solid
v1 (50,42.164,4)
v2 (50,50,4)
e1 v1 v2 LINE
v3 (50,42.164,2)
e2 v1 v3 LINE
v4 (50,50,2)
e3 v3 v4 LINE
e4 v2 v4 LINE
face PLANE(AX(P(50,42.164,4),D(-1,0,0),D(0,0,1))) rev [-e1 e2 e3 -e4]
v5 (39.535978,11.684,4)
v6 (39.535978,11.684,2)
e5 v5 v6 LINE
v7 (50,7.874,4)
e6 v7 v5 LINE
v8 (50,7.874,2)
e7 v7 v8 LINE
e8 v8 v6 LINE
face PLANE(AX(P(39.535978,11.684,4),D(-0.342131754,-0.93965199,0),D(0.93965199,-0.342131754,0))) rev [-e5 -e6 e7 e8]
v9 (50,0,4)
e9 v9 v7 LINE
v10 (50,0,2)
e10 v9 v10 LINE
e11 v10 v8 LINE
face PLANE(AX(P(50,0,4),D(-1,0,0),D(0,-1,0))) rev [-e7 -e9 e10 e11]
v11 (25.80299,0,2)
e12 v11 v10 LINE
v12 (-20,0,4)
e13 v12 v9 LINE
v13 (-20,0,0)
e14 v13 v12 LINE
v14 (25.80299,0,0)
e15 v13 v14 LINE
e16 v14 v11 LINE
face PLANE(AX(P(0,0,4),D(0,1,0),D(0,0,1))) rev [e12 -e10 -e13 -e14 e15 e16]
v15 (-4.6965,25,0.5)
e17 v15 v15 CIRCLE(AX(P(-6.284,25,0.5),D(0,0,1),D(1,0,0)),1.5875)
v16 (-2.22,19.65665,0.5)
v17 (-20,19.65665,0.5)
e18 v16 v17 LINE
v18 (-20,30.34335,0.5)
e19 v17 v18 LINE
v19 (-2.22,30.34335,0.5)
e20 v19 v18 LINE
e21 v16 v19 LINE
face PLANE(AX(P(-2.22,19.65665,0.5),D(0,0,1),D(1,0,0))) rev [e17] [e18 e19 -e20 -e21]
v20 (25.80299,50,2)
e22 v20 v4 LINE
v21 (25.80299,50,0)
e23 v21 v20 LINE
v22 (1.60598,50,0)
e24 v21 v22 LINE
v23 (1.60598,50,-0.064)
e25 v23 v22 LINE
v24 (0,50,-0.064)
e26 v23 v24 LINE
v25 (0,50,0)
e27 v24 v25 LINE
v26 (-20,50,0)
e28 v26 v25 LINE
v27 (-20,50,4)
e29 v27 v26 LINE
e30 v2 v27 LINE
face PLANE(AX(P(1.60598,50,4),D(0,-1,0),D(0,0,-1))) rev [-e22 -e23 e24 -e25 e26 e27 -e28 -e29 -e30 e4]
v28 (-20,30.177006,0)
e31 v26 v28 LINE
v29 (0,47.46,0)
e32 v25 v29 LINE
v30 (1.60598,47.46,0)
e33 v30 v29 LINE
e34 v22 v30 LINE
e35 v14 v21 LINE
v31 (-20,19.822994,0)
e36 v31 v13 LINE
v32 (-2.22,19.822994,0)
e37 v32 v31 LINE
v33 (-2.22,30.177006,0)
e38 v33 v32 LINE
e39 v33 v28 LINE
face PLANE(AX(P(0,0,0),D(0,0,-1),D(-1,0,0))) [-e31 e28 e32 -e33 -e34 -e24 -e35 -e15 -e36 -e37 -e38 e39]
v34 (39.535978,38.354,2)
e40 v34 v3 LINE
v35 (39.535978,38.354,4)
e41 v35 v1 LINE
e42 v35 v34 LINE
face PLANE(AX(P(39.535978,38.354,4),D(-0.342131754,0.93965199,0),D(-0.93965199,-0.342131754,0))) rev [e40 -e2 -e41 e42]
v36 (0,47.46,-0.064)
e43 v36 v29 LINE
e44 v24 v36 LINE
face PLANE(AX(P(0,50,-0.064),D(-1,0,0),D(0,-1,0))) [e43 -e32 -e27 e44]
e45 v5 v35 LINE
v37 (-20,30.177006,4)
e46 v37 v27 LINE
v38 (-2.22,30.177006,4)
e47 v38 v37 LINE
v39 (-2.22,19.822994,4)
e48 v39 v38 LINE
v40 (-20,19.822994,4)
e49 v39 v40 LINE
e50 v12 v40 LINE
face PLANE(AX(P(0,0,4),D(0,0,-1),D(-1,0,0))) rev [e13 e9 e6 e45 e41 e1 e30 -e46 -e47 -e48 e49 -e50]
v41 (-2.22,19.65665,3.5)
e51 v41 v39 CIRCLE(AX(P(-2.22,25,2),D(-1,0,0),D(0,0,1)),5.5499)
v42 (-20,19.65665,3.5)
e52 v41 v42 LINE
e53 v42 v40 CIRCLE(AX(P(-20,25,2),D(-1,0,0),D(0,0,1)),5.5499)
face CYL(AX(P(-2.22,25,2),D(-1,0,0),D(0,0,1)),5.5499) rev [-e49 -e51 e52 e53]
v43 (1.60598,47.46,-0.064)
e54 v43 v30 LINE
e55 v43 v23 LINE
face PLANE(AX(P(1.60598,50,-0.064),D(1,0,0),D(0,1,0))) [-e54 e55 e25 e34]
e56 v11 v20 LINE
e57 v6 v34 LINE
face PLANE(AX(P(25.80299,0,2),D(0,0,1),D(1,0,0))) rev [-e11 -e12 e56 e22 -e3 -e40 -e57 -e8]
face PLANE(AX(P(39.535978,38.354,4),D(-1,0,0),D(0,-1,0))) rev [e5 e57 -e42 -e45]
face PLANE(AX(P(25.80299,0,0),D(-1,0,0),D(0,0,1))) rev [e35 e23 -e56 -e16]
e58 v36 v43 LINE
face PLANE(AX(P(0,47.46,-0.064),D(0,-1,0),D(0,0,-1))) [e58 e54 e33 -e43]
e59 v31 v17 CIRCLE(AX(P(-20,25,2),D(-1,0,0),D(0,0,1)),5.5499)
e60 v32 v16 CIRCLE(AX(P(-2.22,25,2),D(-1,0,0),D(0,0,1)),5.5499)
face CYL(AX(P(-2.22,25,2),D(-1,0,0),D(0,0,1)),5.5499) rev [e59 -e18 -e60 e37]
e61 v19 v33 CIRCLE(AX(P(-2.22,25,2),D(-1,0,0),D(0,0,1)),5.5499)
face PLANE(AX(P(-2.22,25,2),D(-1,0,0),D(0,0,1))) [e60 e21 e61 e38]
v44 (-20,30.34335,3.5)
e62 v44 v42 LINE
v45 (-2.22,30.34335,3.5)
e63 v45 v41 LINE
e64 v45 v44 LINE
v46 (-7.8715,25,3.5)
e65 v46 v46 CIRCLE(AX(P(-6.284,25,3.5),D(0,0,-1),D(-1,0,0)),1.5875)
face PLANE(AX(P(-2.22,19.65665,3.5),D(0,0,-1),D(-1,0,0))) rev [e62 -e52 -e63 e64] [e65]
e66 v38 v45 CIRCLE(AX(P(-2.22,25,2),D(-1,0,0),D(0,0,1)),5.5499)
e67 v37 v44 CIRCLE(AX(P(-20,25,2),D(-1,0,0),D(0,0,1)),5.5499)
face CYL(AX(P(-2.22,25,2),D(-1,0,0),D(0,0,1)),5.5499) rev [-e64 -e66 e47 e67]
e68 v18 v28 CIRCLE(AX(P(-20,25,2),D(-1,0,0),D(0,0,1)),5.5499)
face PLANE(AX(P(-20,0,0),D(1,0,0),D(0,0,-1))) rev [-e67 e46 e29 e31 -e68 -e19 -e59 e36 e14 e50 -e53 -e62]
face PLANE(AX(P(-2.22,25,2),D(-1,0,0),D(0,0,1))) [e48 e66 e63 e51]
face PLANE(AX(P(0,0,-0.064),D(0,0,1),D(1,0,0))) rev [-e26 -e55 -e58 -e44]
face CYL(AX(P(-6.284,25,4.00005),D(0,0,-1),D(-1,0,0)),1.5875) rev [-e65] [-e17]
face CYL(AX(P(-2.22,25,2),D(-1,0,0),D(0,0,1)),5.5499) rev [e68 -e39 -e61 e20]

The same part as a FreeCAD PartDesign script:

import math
import FreeCAD as App
import Part
import Sketcher
from FreeCAD import Vector
Q = App.Units.Quantity

doc = App.newDocument("Part")
body = doc.addObject("PartDesign::Body", "Body")

sketch1 = body.newObject("Sketcher::SketchObject", "Sketch")
sketch1.AttachmentSupport = (doc.getObject("XY_Plane"), [""])
sketch1.MapMode = "FlatFace"
sketch1.addGeometry(Part.LineSegment(Vector(50, 42.2, 0), Vector(50, 50, 0)), False)
sketch1.addGeometry(Part.LineSegment(Vector(50, 50, 0), Vector(1.6, 50, 0)), False)
sketch1.addGeometry(Part.LineSegment(Vector(1.6, 50, 0), Vector(1.6, 47.5, 0)), False)
sketch1.addGeometry(Part.LineSegment(Vector(1.6, 47.5, 0), Vector(0, 47.5, 0)), False)
sketch1.addGeometry(Part.LineSegment(Vector(0, 47.5, 0), Vector(0, 0, 0)), False)
sketch1.addGeometry(Part.LineSegment(Vector(0, 0, 0), Vector(50, 0, 0)), False)
sketch1.addGeometry(Part.LineSegment(Vector(50, 0, 0), Vector(50, 7.9, 0)), False)
sketch1.addGeometry(Part.LineSegment(Vector(50, 7.9, 0), Vector(39.5, 11.7, 0)), False)
sketch1.addGeometry(Part.LineSegment(Vector(39.5, 11.7, 0), Vector(39.5, 38.4, 0)), False)
sketch1.addGeometry(Part.LineSegment(Vector(39.5, 38.4, 0), Vector(50, 42.2, 0)), False)
sketch1.addConstraint(Sketcher.Constraint("Coincident", 0, 2, 1, 1))
sketch1.addConstraint(Sketcher.Constraint("Coincident", 1, 2, 2, 1))
sketch1.addConstraint(Sketcher.Constraint("Coincident", 2, 2, 3, 1))
sketch1.addConstraint(Sketcher.Constraint("Coincident", 3, 2, 4, 1))
sketch1.addConstraint(Sketcher.Constraint("Coincident", 4, 2, 5, 1))
sketch1.addConstraint(Sketcher.Constraint("Coincident", 5, 2, 6, 1))
sketch1.addConstraint(Sketcher.Constraint("Coincident", 6, 2, 7, 1))
sketch1.addConstraint(Sketcher.Constraint("Coincident", 7, 2, 8, 1))
sketch1.addConstraint(Sketcher.Constraint("Coincident", 8, 2, 9, 1))
sketch1.addConstraint(Sketcher.Constraint("Coincident", 9, 2, 0, 1))
sketch1.addConstraint(Sketcher.Constraint("Vertical", 0))
sketch1.addConstraint(Sketcher.Constraint("Horizontal", 1))
sketch1.addConstraint(Sketcher.Constraint("Vertical", 2))
sketch1.addConstraint(Sketcher.Constraint("Horizontal", 3))
sketch1.addConstraint(Sketcher.Constraint("Vertical", 4))
sketch1.addConstraint(Sketcher.Constraint("Horizontal", 5))
sketch1.addConstraint(Sketcher.Constraint("Vertical", 6))
sketch1.addConstraint(Sketcher.Constraint("Vertical", 8))
sketch1.addConstraint(Sketcher.Constraint("Coincident", 4, 2, -1, 1))
sketch1.addConstraint(Sketcher.Constraint("Vertical", 0, 2, 5, 2))
sketch1.addConstraint(Sketcher.Constraint("Equal", 7, 9))
sketch1.addConstraint(Sketcher.Constraint("DistanceY", 2, 2, 2, 1, Q("0.1 in")))
sketch1.addConstraint(Sketcher.Constraint("DistanceY", 6, 1, 6, 2, Q("0.31 in")))
sketch1.addConstraint(Sketcher.Constraint("DistanceY", 8, 1, 8, 2, Q("1.05 in")))
sketch1.addConstraint(Sketcher.Constraint("DistanceY", 6, 2, 8, 2, Q("1.2 in")))
sketch1.addConstraint(Sketcher.Constraint("DistanceX", 5, 1, 5, 2, Q("50 mm")))
sketch1.addConstraint(Sketcher.Constraint("DistanceY", 0, 1, 0, 2, Q("7.836 mm")))
sketch1.addConstraint(Sketcher.Constraint("DistanceX", 1, 2, 1, 1, Q("48.39402 mm")))
sketch1.addConstraint(Sketcher.Constraint("DistanceX", 2, 2, 7, 2, Q("37.929998 mm")))
pad1 = body.newObject("PartDesign::Pad", "Pad")
pad1.Profile = sketch1
pad1.Length = 4

sketch2 = body.newObject("Sketcher::SketchObject", "Sketch001")
sketch2.AttachmentSupport = (doc.getObject("XZ_Plane"), [""])
sketch2.MapMode = "FlatFace"
sketch2.AttachmentOffset = App.Placement(Vector(0, 0, -50), App.Rotation())
sketch2.addGeometry(Part.LineSegment(Vector(25.8, 0, 0), Vector(25.8, 2, 0)), False)
sketch2.addGeometry(Part.LineSegment(Vector(25.8, 2, 0), Vector(50, 2, 0)), False)
sketch2.addGeometry(Part.LineSegment(Vector(50, 2, 0), Vector(50, 0, 0)), False)
sketch2.addGeometry(Part.LineSegment(Vector(50, 0, 0), Vector(25.8, 0, 0)), False)
sketch2.addConstraint(Sketcher.Constraint("Coincident", 0, 2, 1, 1))
sketch2.addConstraint(Sketcher.Constraint("Coincident", 1, 2, 2, 1))
sketch2.addConstraint(Sketcher.Constraint("Coincident", 2, 2, 3, 1))
sketch2.addConstraint(Sketcher.Constraint("Coincident", 3, 2, 0, 1))
sketch2.addConstraint(Sketcher.Constraint("Vertical", 0))
sketch2.addConstraint(Sketcher.Constraint("Horizontal", 1))
sketch2.addConstraint(Sketcher.Constraint("Vertical", 2))
sketch2.addConstraint(Sketcher.Constraint("Horizontal", 3))
sketch2.addConstraint(Sketcher.Constraint("PointOnObject", 2, 2, -1))
sketch2.addConstraint(Sketcher.Constraint("DistanceY", 0, 1, 0, 2, Q("2 mm")))
sketch2.addConstraint(Sketcher.Constraint("DistanceX", 1, 1, 1, 2, Q("24.19701 mm")))
sketch2.addConstraint(Sketcher.Constraint("DistanceX", -1, 1, 1, 2, Q("50 mm")))
pocket1 = body.newObject("PartDesign::Pocket", "Pocket")
pocket1.Profile = sketch2
pocket1.Type = "ThroughAll"
pocket1.Reversed = True

sketch3 = body.newObject("Sketcher::SketchObject", "Sketch002")
sketch3.AttachmentSupport = (doc.getObject("YZ_Plane"), [""])
sketch3.MapMode = "FlatFace"
sketch3.addGeometry(Part.LineSegment(Vector(50, 0, 0), Vector(0, 0, 0)), False)
sketch3.addGeometry(Part.LineSegment(Vector(0, 0, 0), Vector(0, 4, 0)), False)
sketch3.addGeometry(Part.LineSegment(Vector(0, 4, 0), Vector(50, 4, 0)), False)
sketch3.addGeometry(Part.LineSegment(Vector(50, 4, 0), Vector(50, 0, 0)), False)
sketch3.addConstraint(Sketcher.Constraint("Coincident", 0, 2, 1, 1))
sketch3.addConstraint(Sketcher.Constraint("Coincident", 1, 2, 2, 1))
sketch3.addConstraint(Sketcher.Constraint("Coincident", 2, 2, 3, 1))
sketch3.addConstraint(Sketcher.Constraint("Coincident", 3, 2, 0, 1))
sketch3.addConstraint(Sketcher.Constraint("Horizontal", 0))
sketch3.addConstraint(Sketcher.Constraint("Vertical", 1))
sketch3.addConstraint(Sketcher.Constraint("Horizontal", 2))
sketch3.addConstraint(Sketcher.Constraint("Vertical", 3))
sketch3.addConstraint(Sketcher.Constraint("Coincident", 0, 2, -1, 1))
sketch3.addConstraint(Sketcher.Constraint("DistanceX", 0, 2, 0, 1, Q("50 mm")))
sketch3.addConstraint(Sketcher.Constraint("DistanceY", 1, 1, 1, 2, Q("4 mm")))
pad2 = body.newObject("PartDesign::Pad", "Pad001")
pad2.Profile = sketch3
pad2.Length = 20
pad2.Reversed = True

sketch4 = body.newObject("Sketcher::SketchObject", "Sketch003")
sketch4.AttachmentSupport = (doc.getObject("YZ_Plane"), [""])
sketch4.MapMode = "FlatFace"
sketch4.AttachmentOffset = App.Placement(Vector(0, 0, -20), App.Rotation())
sketch4.addGeometry(Part.LineSegment(Vector(30.3, 3.5, 0), Vector(19.7, 3.5, 0)), False)
sketch4.addGeometry(Part.ArcOfCircle(Part.Circle(Vector(25, 2, 0), Vector(0, 0, 1), 5.5), math.radians(158.88), math.radians(164.32)), False)
sketch4.addGeometry(Part.LineSegment(Vector(19.8, 4, 0), Vector(30.2, 4, 0)), False)
sketch4.addGeometry(Part.ArcOfCircle(Part.Circle(Vector(25, 2, 0), Vector(0, 0, 1), 5.5), math.radians(15.68), math.radians(21.12)), False)
sketch4.addGeometry(Part.LineSegment(Vector(19.7, 0.5, 0), Vector(30.3, 0.5, 0)), False)
sketch4.addGeometry(Part.ArcOfCircle(Part.Circle(Vector(25, 2, 0), Vector(0, 0, 1), 5.5), math.radians(-21.12), math.radians(-15.68)), False)
sketch4.addGeometry(Part.LineSegment(Vector(30.2, 0, 0), Vector(19.8, 0, 0)), False)
sketch4.addGeometry(Part.ArcOfCircle(Part.Circle(Vector(25, 2, 0), Vector(0, 0, 1), 5.5), math.radians(-164.32), math.radians(-158.88)), False)
sketch4.addConstraint(Sketcher.Constraint("Coincident", 0, 2, 1, 2))
sketch4.addConstraint(Sketcher.Constraint("Coincident", 1, 1, 2, 1))
sketch4.addConstraint(Sketcher.Constraint("Coincident", 2, 2, 3, 2))
sketch4.addConstraint(Sketcher.Constraint("Coincident", 3, 1, 0, 1))
sketch4.addConstraint(Sketcher.Constraint("Coincident", 4, 2, 5, 2))
sketch4.addConstraint(Sketcher.Constraint("Coincident", 5, 1, 6, 1))
sketch4.addConstraint(Sketcher.Constraint("Coincident", 6, 2, 7, 2))
sketch4.addConstraint(Sketcher.Constraint("Coincident", 7, 1, 4, 1))
sketch4.addConstraint(Sketcher.Constraint("Horizontal", 0))
sketch4.addConstraint(Sketcher.Constraint("Horizontal", 2))
sketch4.addConstraint(Sketcher.Constraint("Horizontal", 4))
sketch4.addConstraint(Sketcher.Constraint("Horizontal", 6))
sketch4.addConstraint(Sketcher.Constraint("Coincident", 3, 3, 1, 3))
sketch4.addConstraint(Sketcher.Constraint("Coincident", 5, 3, 1, 3))
sketch4.addConstraint(Sketcher.Constraint("Coincident", 7, 3, 1, 3))
sketch4.addConstraint(Sketcher.Constraint("Equal", 1, 3))
sketch4.addConstraint(Sketcher.Constraint("Equal", 3, 5))
sketch4.addConstraint(Sketcher.Constraint("Equal", 5, 7))
sketch4.addConstraint(Sketcher.Constraint("PointOnObject", 5, 1, -1))
sketch4.addConstraint(Sketcher.Constraint("Vertical", 3, 1, 4, 2))
sketch4.addConstraint(Sketcher.Constraint("Vertical", 2, 2, 5, 1))
sketch4.addConstraint(Sketcher.Constraint("Radius", 1, Q("0.2185 in")))
sketch4.addConstraint(Sketcher.Constraint("DistanceX", 0, 2, 0, 1, Q("10.6867 mm")))
sketch4.addConstraint(Sketcher.Constraint("DistanceX", 2, 1, 2, 2, Q("10.354012 mm")))
sketch4.addConstraint(Sketcher.Constraint("DistanceX", -1, 1, 1, 3, Q("25 mm")))
pocket2 = body.newObject("PartDesign::Pocket", "Pocket001")
pocket2.Profile = sketch4
pocket2.Length = Q("0.7 in")
pocket2.Reversed = True

sketch5 = body.newObject("Sketcher::SketchObject", "Sketch004")
sketch5.AttachmentSupport = (doc.getObject("XY_Plane"), [""])
sketch5.MapMode = "FlatFace"
sketch5.addGeometry(Part.Circle(Vector(-6.3, 25, 0), Vector(0, 0, 1), 1.6), False)
sketch5.addConstraint(Sketcher.Constraint("Diameter", 0, Q("0.125 in")))
sketch5.addConstraint(Sketcher.Constraint("DistanceX", 0, 3, -1, 1, Q("6.284 mm")))
sketch5.addConstraint(Sketcher.Constraint("DistanceY", -1, 1, 0, 3, Q("25 mm")))
pocket3 = body.newObject("PartDesign::Pocket", "Pocket002")
pocket3.Profile = sketch5
pocket3.Type = "ThroughAll"
pocket3.Reversed = True

sketch6 = body.newObject("Sketcher::SketchObject", "Sketch005")
sketch6.AttachmentSupport = (doc.getObject("XY_Plane"), [""])
sketch6.MapMode = "FlatFace"
sketch6.AttachmentOffset = App.Placement(Vector(0, 0, 4), App.Rotation())
sketch6.addGeometry(Part.LineSegment(Vector(0, 50, 0), Vector(0, 47.5, 0)), False)
sketch6.addGeometry(Part.LineSegment(Vector(0, 47.5, 0), Vector(1.6, 47.5, 0)), False)
sketch6.addGeometry(Part.LineSegment(Vector(1.6, 47.5, 0), Vector(1.6, 50, 0)), False)
sketch6.addGeometry(Part.LineSegment(Vector(1.6, 50, 0), Vector(0, 50, 0)), False)
sketch6.addConstraint(Sketcher.Constraint("Coincident", 0, 2, 1, 1))
sketch6.addConstraint(Sketcher.Constraint("Coincident", 1, 2, 2, 1))
sketch6.addConstraint(Sketcher.Constraint("Coincident", 2, 2, 3, 1))
sketch6.addConstraint(Sketcher.Constraint("Coincident", 3, 2, 0, 1))
sketch6.addConstraint(Sketcher.Constraint("Vertical", 0))
sketch6.addConstraint(Sketcher.Constraint("Horizontal", 1))
sketch6.addConstraint(Sketcher.Constraint("Vertical", 2))
sketch6.addConstraint(Sketcher.Constraint("Horizontal", 3))
sketch6.addConstraint(Sketcher.Constraint("PointOnObject", 0, 2, -2))
sketch6.addConstraint(Sketcher.Constraint("DistanceY", 0, 2, 0, 1, Q("0.1 in")))
sketch6.addConstraint(Sketcher.Constraint("DistanceX", 1, 1, 1, 2, Q("1.60598 mm")))
sketch6.addConstraint(Sketcher.Constraint("DistanceY", -1, 1, 0, 2, Q("47.46 mm")))
pad3 = body.newObject("PartDesign::Pad", "Pad002")
pad3.Profile = sketch6
pad3.Length = Q("0.16 in")
pad3.Reversed = True

doc.recompute()
